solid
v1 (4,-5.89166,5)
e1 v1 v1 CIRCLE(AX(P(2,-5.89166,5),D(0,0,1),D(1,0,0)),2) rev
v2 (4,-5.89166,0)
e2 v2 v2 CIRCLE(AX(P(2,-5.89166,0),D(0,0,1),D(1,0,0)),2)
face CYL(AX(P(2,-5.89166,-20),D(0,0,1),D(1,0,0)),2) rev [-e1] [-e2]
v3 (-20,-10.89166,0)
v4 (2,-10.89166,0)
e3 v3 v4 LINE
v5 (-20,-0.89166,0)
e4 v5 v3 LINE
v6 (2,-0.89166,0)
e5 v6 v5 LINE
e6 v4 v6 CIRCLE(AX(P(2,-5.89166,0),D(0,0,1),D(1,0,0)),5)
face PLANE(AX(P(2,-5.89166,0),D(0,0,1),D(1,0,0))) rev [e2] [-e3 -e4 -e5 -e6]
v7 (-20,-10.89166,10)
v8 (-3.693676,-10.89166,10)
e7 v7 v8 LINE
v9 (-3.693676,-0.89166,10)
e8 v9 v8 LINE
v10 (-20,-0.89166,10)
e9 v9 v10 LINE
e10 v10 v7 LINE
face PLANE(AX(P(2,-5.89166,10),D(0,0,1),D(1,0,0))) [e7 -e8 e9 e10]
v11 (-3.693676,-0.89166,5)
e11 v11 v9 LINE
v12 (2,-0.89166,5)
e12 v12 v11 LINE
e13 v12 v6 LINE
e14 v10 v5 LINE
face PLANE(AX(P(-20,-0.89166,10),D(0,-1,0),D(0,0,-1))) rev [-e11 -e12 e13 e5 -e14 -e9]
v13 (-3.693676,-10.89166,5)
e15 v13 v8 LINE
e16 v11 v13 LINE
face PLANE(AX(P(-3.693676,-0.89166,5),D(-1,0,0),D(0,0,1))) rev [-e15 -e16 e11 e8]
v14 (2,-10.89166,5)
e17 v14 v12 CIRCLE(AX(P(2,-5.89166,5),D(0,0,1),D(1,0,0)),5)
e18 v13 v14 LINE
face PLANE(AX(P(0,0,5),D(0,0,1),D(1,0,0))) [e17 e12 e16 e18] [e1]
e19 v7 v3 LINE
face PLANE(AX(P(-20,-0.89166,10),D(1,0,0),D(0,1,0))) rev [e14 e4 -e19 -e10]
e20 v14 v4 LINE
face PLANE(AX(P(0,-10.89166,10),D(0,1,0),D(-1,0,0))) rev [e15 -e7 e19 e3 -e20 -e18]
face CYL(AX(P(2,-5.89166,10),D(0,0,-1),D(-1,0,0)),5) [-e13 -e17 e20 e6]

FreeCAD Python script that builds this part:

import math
import FreeCAD as App
import Part
import Sketcher

doc = App.newDocument("Part")
body = doc.addObject("PartDesign::Body", "Body")

# Sketch on XY plane
sketch1 = body.newObject("Sketcher::SketchObject", "Sketch")
sketch1.AttachmentSupport = (doc.getObject("XY_Plane"), [""])
sketch1.MapMode = "FlatFace"
sketch1.addGeometry([
    Part.ArcOfCircle(Part.Circle(App.Vector(2, -6, 0), App.Vector(0, 0, 1), 5), math.radians(-90), math.radians(90)),
    Part.LineSegment(App.Vector(2, -1, 0), App.Vector(-20, -1, 0)),
    Part.LineSegment(App.Vector(-20, -1, 0), App.Vector(-20, -11, 0)),
    Part.LineSegment(App.Vector(-20, -11, 0), App.Vector(2, -11, 0)),
], False)
sketch1.addConstraint([
    Sketcher.Constraint("Tangent", 0, 2, 1, 1),
    Sketcher.Constraint("Coincident", 1, 2, 2, 1),
    Sketcher.Constraint("Coincident", 2, 2, 3, 1),
    Sketcher.Constraint("Tangent", 3, 2, 0, 1),
    Sketcher.Constraint("Horizontal", 1),
    Sketcher.Constraint("Vertical", 2),
    Sketcher.Constraint("Horizontal", 3),
    Sketcher.Constraint("Radius", 0, 5.0),
    Sketcher.Constraint("DistanceX", 1, 2, 1, 1, 22.0),
    Sketcher.Constraint("DistanceX", -1, 1, 0, 3, 2.0),
    Sketcher.Constraint("DistanceY", 0, 3, -1, 1, 5.89166),
])
pad1 = body.newObject("PartDesign::Pad", "Pad")
pad1.Profile = sketch1
pad1.Length = 10

# Sketch on XY plane
sketch2 = body.newObject("Sketcher::SketchObject", "Sketch001")
sketch2.AttachmentSupport = (doc.getObject("XY_Plane"), [""])
sketch2.MapMode = "FlatFace"
sketch2.AttachmentOffset = App.Placement(App.Vector(0, 0, 10), App.Rotation())
sketch2.addGeometry(Part.Circle(App.Vector(2, -5.9, 0), App.Vector(0, 0, 1), 2), False)
sketch2.addConstraint([
    Sketcher.Constraint("Diameter", 0, 4.0),
    Sketcher.Constraint("DistanceX", -1, 1, 0, 3, 2.0),
    Sketcher.Constraint("DistanceY", 0, 3, -1, 1, 5.89166),
])
pocket1 = body.newObject("PartDesign::Pocket", "Pocket")
pocket1.Profile = sketch2
pocket1.Length = 30

# Sketch on XY plane
sketch3 = body.newObject("Sketcher::SketchObject", "Sketch002")
sketch3.AttachmentSupport = (doc.getObject("XY_Plane"), [""])
sketch3.MapMode = "FlatFace"
sketch3.AttachmentOffset = App.Placement(App.Vector(0, 0, 10), App.Rotation())
sketch3.addGeometry([
    Part.LineSegment(App.Vector(-4, -1, 0), App.Vector(-4, -11, 0)),
    Part.LineSegment(App.Vector(-4, -11, 0), App.Vector(15, -11, 0)),
    Part.LineSegment(App.Vector(15, -11, 0), App.Vector(15, -1, 0)),
    Part.LineSegment(App.Vector(15, -1, 0), App.Vector(-4, -1, 0)),
], False)
sketch3.addConstraint([
    Sketcher.Constraint("Coincident", 0, 2, 1, 1),
    Sketcher.Constraint("Coincident", 1, 2, 2, 1),
    Sketcher.Constraint("Coincident", 2, 2, 3, 1),
    Sketcher.Constraint("Coincident", 3, 2, 0, 1),
    Sketcher.Constraint("Vertical", 0),
    Sketcher.Constraint("Horizontal", 1),
    Sketcher.Constraint("Vertical", 2),
    Sketcher.Constraint("Horizontal", 3),
    Sketcher.Constraint("DistanceX", 1, 1, 1, 2, 18.757467),
    Sketcher.Constraint("DistanceY", 0, 2, 0, 1, 10.082917),
    Sketcher.Constraint("DistanceX", -1, 1, 1, 2, 15.063791),
    Sketcher.Constraint("DistanceY", 2, 2, -1, 1, 0.89166),
])
pocket2 = body.newObject("PartDesign::Pocket", "Pocket001")
pocket2.Profile = sketch3
pocket2.Length = 5

doc.recompute()
